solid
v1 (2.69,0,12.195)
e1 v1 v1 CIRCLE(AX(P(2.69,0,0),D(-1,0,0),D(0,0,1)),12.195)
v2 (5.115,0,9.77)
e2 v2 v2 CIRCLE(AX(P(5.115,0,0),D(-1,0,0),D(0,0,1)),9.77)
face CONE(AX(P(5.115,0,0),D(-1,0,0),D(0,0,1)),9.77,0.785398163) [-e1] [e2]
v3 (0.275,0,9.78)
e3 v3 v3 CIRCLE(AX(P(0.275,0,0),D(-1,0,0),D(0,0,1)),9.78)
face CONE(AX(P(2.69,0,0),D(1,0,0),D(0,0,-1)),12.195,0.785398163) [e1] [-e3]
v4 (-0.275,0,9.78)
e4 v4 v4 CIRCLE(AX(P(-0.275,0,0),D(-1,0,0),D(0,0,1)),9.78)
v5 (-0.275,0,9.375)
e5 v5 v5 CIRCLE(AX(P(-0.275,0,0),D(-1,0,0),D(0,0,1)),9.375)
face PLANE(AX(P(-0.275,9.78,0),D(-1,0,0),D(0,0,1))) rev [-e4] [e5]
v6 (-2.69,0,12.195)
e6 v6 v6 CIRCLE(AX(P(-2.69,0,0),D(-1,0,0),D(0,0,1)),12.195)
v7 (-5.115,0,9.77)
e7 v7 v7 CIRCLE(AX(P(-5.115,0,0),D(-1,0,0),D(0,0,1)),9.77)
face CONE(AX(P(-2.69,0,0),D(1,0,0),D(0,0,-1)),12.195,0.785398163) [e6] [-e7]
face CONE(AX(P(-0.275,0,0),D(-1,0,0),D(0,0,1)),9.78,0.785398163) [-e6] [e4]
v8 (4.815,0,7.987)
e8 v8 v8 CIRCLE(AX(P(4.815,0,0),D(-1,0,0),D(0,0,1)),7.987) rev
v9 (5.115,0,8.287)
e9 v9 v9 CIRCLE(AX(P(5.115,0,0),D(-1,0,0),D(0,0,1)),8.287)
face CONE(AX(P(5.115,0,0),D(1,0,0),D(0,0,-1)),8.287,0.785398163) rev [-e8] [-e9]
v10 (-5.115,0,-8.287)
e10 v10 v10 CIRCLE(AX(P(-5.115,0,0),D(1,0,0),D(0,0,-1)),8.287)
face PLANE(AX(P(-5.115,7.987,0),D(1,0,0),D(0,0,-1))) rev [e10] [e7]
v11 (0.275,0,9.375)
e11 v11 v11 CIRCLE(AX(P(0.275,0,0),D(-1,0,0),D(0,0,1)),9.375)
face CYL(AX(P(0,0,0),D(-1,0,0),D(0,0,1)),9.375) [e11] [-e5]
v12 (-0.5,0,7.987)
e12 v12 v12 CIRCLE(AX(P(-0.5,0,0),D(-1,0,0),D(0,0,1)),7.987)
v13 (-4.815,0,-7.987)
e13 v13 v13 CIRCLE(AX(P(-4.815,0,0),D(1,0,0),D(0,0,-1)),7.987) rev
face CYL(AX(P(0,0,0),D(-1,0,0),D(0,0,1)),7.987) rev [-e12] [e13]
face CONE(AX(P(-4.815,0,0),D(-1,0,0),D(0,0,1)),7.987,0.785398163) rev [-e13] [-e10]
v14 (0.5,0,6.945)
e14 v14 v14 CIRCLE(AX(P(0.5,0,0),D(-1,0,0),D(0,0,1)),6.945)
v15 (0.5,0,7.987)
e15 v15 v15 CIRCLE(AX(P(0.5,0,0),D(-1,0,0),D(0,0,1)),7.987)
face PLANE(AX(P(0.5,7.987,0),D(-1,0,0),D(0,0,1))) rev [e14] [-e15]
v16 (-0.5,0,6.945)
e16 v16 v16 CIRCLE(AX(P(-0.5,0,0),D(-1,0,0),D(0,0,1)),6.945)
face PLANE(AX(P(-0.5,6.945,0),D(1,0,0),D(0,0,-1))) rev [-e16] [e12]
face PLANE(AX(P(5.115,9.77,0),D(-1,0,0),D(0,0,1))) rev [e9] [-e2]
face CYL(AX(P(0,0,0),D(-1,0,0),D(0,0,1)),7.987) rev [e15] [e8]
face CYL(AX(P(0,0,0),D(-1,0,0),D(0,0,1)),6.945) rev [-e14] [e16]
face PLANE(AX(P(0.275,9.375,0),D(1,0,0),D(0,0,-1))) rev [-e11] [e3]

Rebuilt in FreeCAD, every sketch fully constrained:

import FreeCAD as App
import Part
import Sketcher

V = App.Vector


def edges_at(feature, points):
    """Names of the edges that pass closest to the given points."""
    edges = feature.Shape.Edges
    near = lambda p: min(range(len(edges)), key=lambda i: edges[i].distToShape(Part.Vertex(*p))[0])
    return sorted({f"Edge{near(p) + 1}" for p in points})

doc = App.newDocument("Part")
params = doc.addObject("Spreadsheet::Sheet", "Params")
for row, (alias, value) in enumerate([
    ("sketch1_width", "1 mm"),
    ("sketch1_width2", "0.55 mm"),
    ("revolution_angle", "360 deg"),
    ("chamfer_size", "0.3 mm"),
], start=1):
    params.set(f"A{row}", alias)
    params.set(f"B{row}", "=" + value)
    params.setAlias(f"B{row}", alias)

body = doc.addObject("PartDesign::Body", "Body")

# Sketch on XY plane
sketch1 = body.newObject("Sketcher::SketchObject", "Sketch")
sketch1.AttachmentSupport = (doc.getObject("XY_Plane"), [""])
sketch1.MapMode = "FlatFace"
sketch1.addGeometry([
    Part.LineSegment(V(-0.5, 6.95, 0), V(0.5, 6.95, 0)),  # 0
    Part.LineSegment(V(0.5, 6.95, 0), V(0.5, 7.99, 0)),  # 1
    Part.LineSegment(V(0.5, 7.99, 0), V(5.12, 7.99, 0)),  # 2
    Part.LineSegment(V(5.12, 7.99, 0), V(5.12, 9.77, 0)),  # 3
    Part.LineSegment(V(5.12, 9.77, 0), V(2.69, 12.2, 0)),  # 4
    Part.LineSegment(V(2.69, 12.2, 0), V(0.28, 9.78, 0)),  # 5
    Part.LineSegment(V(0.28, 9.78, 0), V(0.28, 9.38, 0)),  # 6
    Part.LineSegment(V(0.28, 9.38, 0), V(-0.28, 9.38, 0)),  # 7
    Part.LineSegment(V(-0.28, 9.38, 0), V(-0.28, 9.78, 0)),  # 8
    Part.LineSegment(V(-0.28, 9.78, 0), V(-2.69, 12.2, 0)),  # 9
    Part.LineSegment(V(-2.69, 12.2, 0), V(-5.12, 9.77, 0)),  # 10
    Part.LineSegment(V(-5.12, 9.77, 0), V(-5.12, 7.99, 0)),  # 11
    Part.LineSegment(V(-5.12, 7.99, 0), V(-0.5, 7.99, 0)),  # 12
    Part.LineSegment(V(-0.5, 7.99, 0), V(-0.5, 6.95, 0)),  # 13
], False)
sketch1.addConstraint([
    Sketcher.Constraint("Coincident", 0, 2, 1, 1),
    Sketcher.Constraint("Coincident", 1, 2, 2, 1),
    Sketcher.Constraint("Coincident", 2, 2, 3, 1),
    Sketcher.Constraint("Coincident", 3, 2, 4, 1),
    Sketcher.Constraint("Coincident", 4, 2, 5, 1),
    Sketcher.Constraint("Coincident", 5, 2, 6, 1),
    Sketcher.Constraint("Coincident", 6, 2, 7, 1),
    Sketcher.Constraint("Coincident", 7, 2, 8, 1),
    Sketcher.Constraint("Coincident", 8, 2, 9, 1),
    Sketcher.Constraint("Coincident", 9, 2, 10, 1),
    Sketcher.Constraint("Coincident", 10, 2, 11, 1),
    Sketcher.Constraint("Coincident", 11, 2, 12, 1),
    Sketcher.Constraint("Coincident", 12, 2, 13, 1),
    Sketcher.Constraint("Coincident", 13, 2, 0, 1),
    Sketcher.Constraint("Horizontal", 0),
    Sketcher.Constraint("Vertical", 1),
    Sketcher.Constraint("Horizontal", 2),
    Sketcher.Constraint("Vertical", 3),
    Sketcher.Constraint("Vertical", 6),
    Sketcher.Constraint("Horizontal", 7),
    Sketcher.Constraint("Vertical", 8),
    Sketcher.Constraint("Vertical", 11),
    Sketcher.Constraint("Horizontal", 12),
    Sketcher.Constraint("Vertical", 13),
    Sketcher.Constraint("Symmetric", 5, 2, 8, 2, -2),
    Sketcher.Constraint("Symmetric", 4, 2, 9, 2, -2),
    Sketcher.Constraint("Symmetric", 3, 2, 10, 2, -2),
    Sketcher.Constraint("Symmetric", 1, 2, 12, 2, -2),
    Sketcher.Constraint("Perpendicular", 4, 5),
    Sketcher.Constraint("Perpendicular", 5, 9),
    Sketcher.Constraint("DistanceX", 0, 1, 0, 2, 1.0),
    Sketcher.Constraint("DistanceX", 7, 2, 7, 1, 0.55),
    Sketcher.Constraint("DistanceX", 2, 1, 2, 2, 4.615),
    Sketcher.Constraint("DistanceY", 1, 1, 1, 2, 1.042),
    Sketcher.Constraint("DistanceY", 3, 1, 3, 2, 1.783),
    Sketcher.Constraint("DistanceY", 6, 2, 6, 1, 0.405),
    Sketcher.Constraint("DistanceY", -1, 1, 3, 2, 9.77),
    Sketcher.Constraint("DistanceX", -1, 1, 4, 2, 2.69),
])
sketch1.setExpression("Constraints[30]", "Params.sketch1_width")
sketch1.setExpression("Constraints[31]", "Params.sketch1_width2")
revolution = body.newObject("PartDesign::Revolution", "Revolution")
revolution.Profile = sketch1
revolution.ReferenceAxis = (sketch1, ["H_Axis"])
revolution.setExpression("Angle", "Params.revolution_angle")
doc.recompute()

chamfer = body.newObject("PartDesign::Chamfer", "Chamfer")
chamfer.Base = (revolution, edges_at(revolution, [(-5.115, -7.987, 0), (5.115, -7.987, 0)]))
chamfer.setExpression("Size", "Params.chamfer_size")

doc.recompute()
